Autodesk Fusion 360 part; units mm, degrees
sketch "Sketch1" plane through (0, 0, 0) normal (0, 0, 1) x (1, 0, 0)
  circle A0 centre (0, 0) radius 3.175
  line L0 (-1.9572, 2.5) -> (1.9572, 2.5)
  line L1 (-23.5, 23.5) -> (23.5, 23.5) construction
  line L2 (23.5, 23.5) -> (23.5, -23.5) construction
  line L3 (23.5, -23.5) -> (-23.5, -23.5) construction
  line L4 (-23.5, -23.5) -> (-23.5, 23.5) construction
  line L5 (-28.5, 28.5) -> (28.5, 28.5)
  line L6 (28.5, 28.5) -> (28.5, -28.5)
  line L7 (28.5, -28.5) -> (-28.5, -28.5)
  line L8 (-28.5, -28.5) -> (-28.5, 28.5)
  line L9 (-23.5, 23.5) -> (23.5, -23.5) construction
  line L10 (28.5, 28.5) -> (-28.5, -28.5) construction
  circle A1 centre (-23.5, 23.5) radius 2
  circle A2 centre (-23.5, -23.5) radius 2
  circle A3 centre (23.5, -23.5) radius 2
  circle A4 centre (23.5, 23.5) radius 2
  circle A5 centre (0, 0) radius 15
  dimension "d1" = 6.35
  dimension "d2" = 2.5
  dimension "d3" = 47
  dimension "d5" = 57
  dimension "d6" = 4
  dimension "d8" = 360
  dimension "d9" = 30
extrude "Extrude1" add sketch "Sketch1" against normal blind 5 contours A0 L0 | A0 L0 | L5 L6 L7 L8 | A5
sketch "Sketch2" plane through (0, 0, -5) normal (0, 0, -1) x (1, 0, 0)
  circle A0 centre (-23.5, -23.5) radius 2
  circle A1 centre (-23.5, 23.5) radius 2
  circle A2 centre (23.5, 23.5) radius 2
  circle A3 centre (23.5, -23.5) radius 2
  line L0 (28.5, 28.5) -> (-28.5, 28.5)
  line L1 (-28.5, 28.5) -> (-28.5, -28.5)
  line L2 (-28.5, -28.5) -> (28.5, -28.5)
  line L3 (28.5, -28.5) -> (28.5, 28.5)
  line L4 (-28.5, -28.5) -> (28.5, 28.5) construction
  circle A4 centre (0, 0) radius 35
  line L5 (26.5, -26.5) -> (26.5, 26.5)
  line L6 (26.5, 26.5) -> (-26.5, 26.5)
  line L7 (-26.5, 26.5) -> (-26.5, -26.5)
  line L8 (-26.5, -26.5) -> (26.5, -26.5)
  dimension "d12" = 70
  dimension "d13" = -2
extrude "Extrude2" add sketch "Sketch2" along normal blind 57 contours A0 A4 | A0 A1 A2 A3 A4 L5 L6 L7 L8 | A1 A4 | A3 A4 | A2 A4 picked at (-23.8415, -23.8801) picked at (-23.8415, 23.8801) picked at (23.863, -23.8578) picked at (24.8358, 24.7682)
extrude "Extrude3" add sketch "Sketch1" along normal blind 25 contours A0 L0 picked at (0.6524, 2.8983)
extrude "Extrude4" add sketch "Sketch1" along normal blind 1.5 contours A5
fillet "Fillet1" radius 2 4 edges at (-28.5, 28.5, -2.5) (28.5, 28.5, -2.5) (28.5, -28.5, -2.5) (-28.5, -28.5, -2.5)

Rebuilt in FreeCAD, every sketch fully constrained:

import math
import FreeCAD as App
import Part
import Sketcher
from FreeCAD import Vector
Q = App.Units.Quantity


def edges_at(feature, points):
    """Names of the edges that pass closest to the given points."""
    edges = feature.Shape.Edges
    near = lambda p: min(range(len(edges)), key=lambda i: edges[i].distToShape(Part.Vertex(*p))[0])
    return sorted({f"Edge{near(p) + 1}" for p in points})

doc = App.newDocument("Part")
params = doc.addObject("Spreadsheet::Sheet", "Params")
for row, (alias, value) in enumerate([
    ("sketch1_diameter", "4 mm"),
    ("sketch1_width", "57 mm"),
    ("pad1_length", "5 mm"),
    ("sketch2_radius", "35 mm"),
    ("sketch2_radius2", "2 mm"),
    ("pad2_length", "57 mm"),
    ("pad3_length", "25 mm"),
    ("sketch4_diameter", "30 mm"),
    ("sketch4_diameter2", "6.35 mm"),
    ("pad4_length", "1.5 mm"),
    ("fillet_radius", "2 mm"),
], start=1):
    params.set(f"A{row}", alias)
    params.set(f"B{row}", "=" + value)
    params.setAlias(f"B{row}", alias)

body = doc.addObject("PartDesign::Body", "Body")
body.AllowCompound = True

sketch1 = body.newObject("Sketcher::SketchObject", "Sketch")
sketch1.AttachmentSupport = (doc.getObject("XY_Plane"), [""])
sketch1.MapMode = "FlatFace"
sketch1.addGeometry([
    Part.LineSegment(Vector(28.5, 28.5, 0), Vector(-28.5, 28.5, 0)),
    Part.LineSegment(Vector(-28.5, 28.5, 0), Vector(-28.5, -28.5, 0)),
    Part.LineSegment(Vector(-28.5, -28.5, 0), Vector(28.5, -28.5, 0)),
    Part.LineSegment(Vector(28.5, -28.5, 0), Vector(28.5, 28.5, 0)),
    Part.Circle(Vector(-23.5, -23.5, 0), Vector(0, 0, 1), 2),
    Part.Circle(Vector(23.5, -23.5, 0), Vector(0, 0, 1), 2),
    Part.Circle(Vector(-23.5, 23.5, 0), Vector(0, 0, 1), 2),
    Part.Circle(Vector(23.5, 23.5, 0), Vector(0, 0, 1), 2),
], False)
sketch1.addConstraint([
    Sketcher.Constraint("Coincident", 0, 2, 1, 1),
    Sketcher.Constraint("Coincident", 1, 2, 2, 1),
    Sketcher.Constraint("Coincident", 2, 2, 3, 1),
    Sketcher.Constraint("Coincident", 3, 2, 0, 1),
    Sketcher.Constraint("Horizontal", 0),
    Sketcher.Constraint("Vertical", 1),
    Sketcher.Constraint("Horizontal", 2),
    Sketcher.Constraint("Vertical", 3),
    Sketcher.Constraint("Equal", 4, 5),
    Sketcher.Constraint("Equal", 5, 6),
    Sketcher.Constraint("Equal", 6, 7),
    Sketcher.Constraint("Symmetric", 5, 3, 6, 3, -1, 1),
    Sketcher.Constraint("Symmetric", 4, 3, 7, 3, -1, 1),
    Sketcher.Constraint("Symmetric", 0, 2, 2, 2, -1, 1),
    Sketcher.Constraint("Symmetric", 4, 3, 5, 3, -2),
    Sketcher.Constraint("Equal", 2, 1),
    Sketcher.Constraint("Diameter", 4, Q("4 mm")),
    Sketcher.Constraint("DistanceX", 0, 2, 0, 1, Q("57 mm")),
    Sketcher.Constraint("DistanceX", 4, 3, 5, 3, Q("47 mm")),
    Sketcher.Constraint("DistanceY", 4, 3, 6, 3, Q("47 mm")),
])
sketch1.setExpression("Constraints[16]", "Params.sketch1_diameter")
sketch1.setExpression("Constraints[17]", "Params.sketch1_width")
pad1 = body.newObject("PartDesign::Pad", "Pad")
pad1.Profile = sketch1
pad1.setExpression("Length", "Params.pad1_length")
pad1.Reversed = True

sketch2 = body.newObject("Sketcher::SketchObject", "Sketch001")
sketch2.AttachmentSupport = (doc.getObject("XY_Plane"), [""])
sketch2.MapMode = "FlatFace"
sketch2.AttachmentOffset = App.Placement(Vector(0, 0, -5), App.Rotation())
sketch2.addGeometry([
    Part.LineSegment(Vector(-22.9, 26.5, 0), Vector(22.9, 26.5, 0)),
    Part.ArcOfCircle(Part.Circle(Vector(0, 0, 0), Vector(0, 0, 1), 35), math.radians(40.79), math.radians(49.21)),
    Part.LineSegment(Vector(26.5, 22.9, 0), Vector(26.5, -22.9, 0)),
    Part.ArcOfCircle(Part.Circle(Vector(0, 0, 0), Vector(0, 0, 1), 35), math.radians(-43.42), math.radians(-40.79)),
    Part.ArcOfCircle(Part.Circle(Vector(23.5, -23.5, 0), Vector(0, 0, 1), 2), math.radians(-16), math.radians(286)),
    Part.ArcOfCircle(Part.Circle(Vector(0, 0, 0), Vector(0, 0, 1), 35), math.radians(-49.21), math.radians(-46.58)),
    Part.LineSegment(Vector(22.9, -26.5, 0), Vector(-22.9, -26.5, 0)),
    Part.ArcOfCircle(Part.Circle(Vector(0, 0, 0), Vector(0, 0, 1), 35), math.radians(-139.21), math.radians(-130.79)),
    Part.LineSegment(Vector(-26.5, -22.9, 0), Vector(-26.5, 22.9, 0)),
    Part.ArcOfCircle(Part.Circle(Vector(0, 0, 0), Vector(0, 0, 1), 35), math.radians(130.79), math.radians(139.21)),
    Part.ArcOfCircle(Part.Circle(Vector(23.5, -23.5, 0), Vector(0, 0, 1), 2), math.radians(-74), math.radians(-16)),
    Part.ArcOfCircle(Part.Circle(Vector(0, 0, 0), Vector(0, 0, 1), 35), math.radians(-46.58), math.radians(-43.42)),
], False)
sketch2.addConstraint([
    Sketcher.Constraint("Coincident", 0, 2, 1, 2),
    Sketcher.Constraint("Coincident", 1, 1, 2, 1),
    Sketcher.Constraint("Coincident", 2, 2, 3, 2),
    Sketcher.Constraint("Coincident", 3, 1, 4, 1),
    Sketcher.Constraint("Coincident", 4, 2, 5, 2),
    Sketcher.Constraint("Coincident", 5, 1, 6, 1),
    Sketcher.Constraint("Coincident", 6, 2, 7, 2),
    Sketcher.Constraint("Coincident", 7, 1, 8, 1),
    Sketcher.Constraint("Coincident", 8, 2, 9, 2),
    Sketcher.Constraint("Coincident", 9, 1, 0, 1),
    Sketcher.Constraint("Coincident", 10, 1, 11, 1),
    Sketcher.Constraint("Coincident", 11, 2, 10, 2),
    Sketcher.Constraint("Horizontal", 0),
    Sketcher.Constraint("Vertical", 2),
    Sketcher.Constraint("Horizontal", 6),
    Sketcher.Constraint("Vertical", 8),
    Sketcher.Constraint("Coincident", 1, 3, -1, 1),
    Sketcher.Constraint("Coincident", 3, 3, -1, 1),
    Sketcher.Constraint("Coincident", 5, 3, -1, 1),
    Sketcher.Constraint("Coincident", 7, 3, -1, 1),
    Sketcher.Constraint("Coincident", 9, 3, -1, 1),
    Sketcher.Constraint("Coincident", 11, 3, -1, 1),
    Sketcher.Constraint("Coincident", 10, 3, 4, 3),
    Sketcher.Constraint("Coincident", 10, 1, 4, 2),
    Sketcher.Constraint("Equal", 1, 3),
    Sketcher.Constraint("Equal", 3, 5),
    Sketcher.Constraint("Equal", 5, 7),
    Sketcher.Constraint("Equal", 7, 9),
    Sketcher.Constraint("Horizontal", 2, 2, 7, 1),
    Sketcher.Constraint("Vertical", 0, 2, 5, 1),
    Sketcher.Constraint("Equal", 6, 2),
    Sketcher.Constraint("Radius", 1, Q("35 mm")),
    Sketcher.Constraint("Radius", 4, Q("2 mm")),
    Sketcher.Constraint("DistanceX", 4, 3, 2, 2, Q("3 mm")),
    Sketcher.Constraint("DistanceY", 5, 1, 4, 3, Q("3 mm")),
    Sketcher.Constraint("DistanceX", -1, 1, 4, 3, Q("23.5 mm")),
])
sketch2.setExpression("Constraints[31]", "Params.sketch2_radius")
sketch2.setExpression("Constraints[32]", "Params.sketch2_radius2")
pad2 = body.newObject("PartDesign::Pad", "Pad001")
pad2.Profile = sketch2
pad2.setExpression("Length", "Params.pad2_length")
pad2.Reversed = True

sketch3 = body.newObject("Sketcher::SketchObject", "Sketch002")
sketch3.AttachmentSupport = (doc.getObject("XY_Plane"), [""])
sketch3.MapMode = "FlatFace"
sketch3.addGeometry([
    Part.LineSegment(Vector(-2, 2.5, 0), Vector(2, 2.5, 0)),
    Part.ArcOfCircle(Part.Circle(Vector(0, 0, 0), Vector(0, 0, 1), 3.2), math.radians(52), math.radians(128)),
], False)
sketch3.addConstraint([
    Sketcher.Constraint("Coincident", 0, 1, 1, 2),
    Sketcher.Constraint("Coincident", 1, 1, 0, 2),
    Sketcher.Constraint("Horizontal", 0),
    Sketcher.Constraint("Coincident", 1, 3, -1, 1),
    Sketcher.Constraint("Radius", 1, Q("3.175 mm")),
    Sketcher.Constraint("DistanceY", -1, 1, 0, 1, Q("2.5 mm")),
])
pad3 = body.newObject("PartDesign::Pad", "Pad002")
pad3.Profile = sketch3
pad3.setExpression("Length", "Params.pad3_length")

sketch4 = body.newObject("Sketcher::SketchObject", "Sketch003")
sketch4.AttachmentSupport = (doc.getObject("XY_Plane"), [""])
sketch4.MapMode = "FlatFace"
sketch4.addGeometry([
    Part.Circle(Vector(0, 0, 0), Vector(0, 0, 1), 15),
    Part.Circle(Vector(0, 0, 0), Vector(0, 0, 1), 3.2),
], False)
sketch4.addConstraint([
    Sketcher.Constraint("Coincident", 0, 3, -1, 1),
    Sketcher.Constraint("Coincident", 1, 3, -1, 1),
    Sketcher.Constraint("Diameter", 0, Q("30 mm")),
    Sketcher.Constraint("Diameter", 1, Q("6.35 mm")),
])
sketch4.setExpression("Constraints[2]", "Params.sketch4_diameter")
sketch4.setExpression("Constraints[3]", "Params.sketch4_diameter2")
pad4 = body.newObject("PartDesign::Pad", "Pad003")
pad4.Profile = sketch4
pad4.setExpression("Length", "Params.pad4_length")
doc.recompute()

fillet = body.newObject("PartDesign::Fillet", "Fillet")
fillet.Base = (pad4, edges_at(pad4, [
    (-28.5, 28.5, -2.5),
    (28.5, 28.5, -2.5),
    (28.5, -28.5, -2.5),
    (-28.5, -28.5, -2.5),
]))
fillet.setExpression("Radius", "Params.fillet_radius")

doc.recompute()
